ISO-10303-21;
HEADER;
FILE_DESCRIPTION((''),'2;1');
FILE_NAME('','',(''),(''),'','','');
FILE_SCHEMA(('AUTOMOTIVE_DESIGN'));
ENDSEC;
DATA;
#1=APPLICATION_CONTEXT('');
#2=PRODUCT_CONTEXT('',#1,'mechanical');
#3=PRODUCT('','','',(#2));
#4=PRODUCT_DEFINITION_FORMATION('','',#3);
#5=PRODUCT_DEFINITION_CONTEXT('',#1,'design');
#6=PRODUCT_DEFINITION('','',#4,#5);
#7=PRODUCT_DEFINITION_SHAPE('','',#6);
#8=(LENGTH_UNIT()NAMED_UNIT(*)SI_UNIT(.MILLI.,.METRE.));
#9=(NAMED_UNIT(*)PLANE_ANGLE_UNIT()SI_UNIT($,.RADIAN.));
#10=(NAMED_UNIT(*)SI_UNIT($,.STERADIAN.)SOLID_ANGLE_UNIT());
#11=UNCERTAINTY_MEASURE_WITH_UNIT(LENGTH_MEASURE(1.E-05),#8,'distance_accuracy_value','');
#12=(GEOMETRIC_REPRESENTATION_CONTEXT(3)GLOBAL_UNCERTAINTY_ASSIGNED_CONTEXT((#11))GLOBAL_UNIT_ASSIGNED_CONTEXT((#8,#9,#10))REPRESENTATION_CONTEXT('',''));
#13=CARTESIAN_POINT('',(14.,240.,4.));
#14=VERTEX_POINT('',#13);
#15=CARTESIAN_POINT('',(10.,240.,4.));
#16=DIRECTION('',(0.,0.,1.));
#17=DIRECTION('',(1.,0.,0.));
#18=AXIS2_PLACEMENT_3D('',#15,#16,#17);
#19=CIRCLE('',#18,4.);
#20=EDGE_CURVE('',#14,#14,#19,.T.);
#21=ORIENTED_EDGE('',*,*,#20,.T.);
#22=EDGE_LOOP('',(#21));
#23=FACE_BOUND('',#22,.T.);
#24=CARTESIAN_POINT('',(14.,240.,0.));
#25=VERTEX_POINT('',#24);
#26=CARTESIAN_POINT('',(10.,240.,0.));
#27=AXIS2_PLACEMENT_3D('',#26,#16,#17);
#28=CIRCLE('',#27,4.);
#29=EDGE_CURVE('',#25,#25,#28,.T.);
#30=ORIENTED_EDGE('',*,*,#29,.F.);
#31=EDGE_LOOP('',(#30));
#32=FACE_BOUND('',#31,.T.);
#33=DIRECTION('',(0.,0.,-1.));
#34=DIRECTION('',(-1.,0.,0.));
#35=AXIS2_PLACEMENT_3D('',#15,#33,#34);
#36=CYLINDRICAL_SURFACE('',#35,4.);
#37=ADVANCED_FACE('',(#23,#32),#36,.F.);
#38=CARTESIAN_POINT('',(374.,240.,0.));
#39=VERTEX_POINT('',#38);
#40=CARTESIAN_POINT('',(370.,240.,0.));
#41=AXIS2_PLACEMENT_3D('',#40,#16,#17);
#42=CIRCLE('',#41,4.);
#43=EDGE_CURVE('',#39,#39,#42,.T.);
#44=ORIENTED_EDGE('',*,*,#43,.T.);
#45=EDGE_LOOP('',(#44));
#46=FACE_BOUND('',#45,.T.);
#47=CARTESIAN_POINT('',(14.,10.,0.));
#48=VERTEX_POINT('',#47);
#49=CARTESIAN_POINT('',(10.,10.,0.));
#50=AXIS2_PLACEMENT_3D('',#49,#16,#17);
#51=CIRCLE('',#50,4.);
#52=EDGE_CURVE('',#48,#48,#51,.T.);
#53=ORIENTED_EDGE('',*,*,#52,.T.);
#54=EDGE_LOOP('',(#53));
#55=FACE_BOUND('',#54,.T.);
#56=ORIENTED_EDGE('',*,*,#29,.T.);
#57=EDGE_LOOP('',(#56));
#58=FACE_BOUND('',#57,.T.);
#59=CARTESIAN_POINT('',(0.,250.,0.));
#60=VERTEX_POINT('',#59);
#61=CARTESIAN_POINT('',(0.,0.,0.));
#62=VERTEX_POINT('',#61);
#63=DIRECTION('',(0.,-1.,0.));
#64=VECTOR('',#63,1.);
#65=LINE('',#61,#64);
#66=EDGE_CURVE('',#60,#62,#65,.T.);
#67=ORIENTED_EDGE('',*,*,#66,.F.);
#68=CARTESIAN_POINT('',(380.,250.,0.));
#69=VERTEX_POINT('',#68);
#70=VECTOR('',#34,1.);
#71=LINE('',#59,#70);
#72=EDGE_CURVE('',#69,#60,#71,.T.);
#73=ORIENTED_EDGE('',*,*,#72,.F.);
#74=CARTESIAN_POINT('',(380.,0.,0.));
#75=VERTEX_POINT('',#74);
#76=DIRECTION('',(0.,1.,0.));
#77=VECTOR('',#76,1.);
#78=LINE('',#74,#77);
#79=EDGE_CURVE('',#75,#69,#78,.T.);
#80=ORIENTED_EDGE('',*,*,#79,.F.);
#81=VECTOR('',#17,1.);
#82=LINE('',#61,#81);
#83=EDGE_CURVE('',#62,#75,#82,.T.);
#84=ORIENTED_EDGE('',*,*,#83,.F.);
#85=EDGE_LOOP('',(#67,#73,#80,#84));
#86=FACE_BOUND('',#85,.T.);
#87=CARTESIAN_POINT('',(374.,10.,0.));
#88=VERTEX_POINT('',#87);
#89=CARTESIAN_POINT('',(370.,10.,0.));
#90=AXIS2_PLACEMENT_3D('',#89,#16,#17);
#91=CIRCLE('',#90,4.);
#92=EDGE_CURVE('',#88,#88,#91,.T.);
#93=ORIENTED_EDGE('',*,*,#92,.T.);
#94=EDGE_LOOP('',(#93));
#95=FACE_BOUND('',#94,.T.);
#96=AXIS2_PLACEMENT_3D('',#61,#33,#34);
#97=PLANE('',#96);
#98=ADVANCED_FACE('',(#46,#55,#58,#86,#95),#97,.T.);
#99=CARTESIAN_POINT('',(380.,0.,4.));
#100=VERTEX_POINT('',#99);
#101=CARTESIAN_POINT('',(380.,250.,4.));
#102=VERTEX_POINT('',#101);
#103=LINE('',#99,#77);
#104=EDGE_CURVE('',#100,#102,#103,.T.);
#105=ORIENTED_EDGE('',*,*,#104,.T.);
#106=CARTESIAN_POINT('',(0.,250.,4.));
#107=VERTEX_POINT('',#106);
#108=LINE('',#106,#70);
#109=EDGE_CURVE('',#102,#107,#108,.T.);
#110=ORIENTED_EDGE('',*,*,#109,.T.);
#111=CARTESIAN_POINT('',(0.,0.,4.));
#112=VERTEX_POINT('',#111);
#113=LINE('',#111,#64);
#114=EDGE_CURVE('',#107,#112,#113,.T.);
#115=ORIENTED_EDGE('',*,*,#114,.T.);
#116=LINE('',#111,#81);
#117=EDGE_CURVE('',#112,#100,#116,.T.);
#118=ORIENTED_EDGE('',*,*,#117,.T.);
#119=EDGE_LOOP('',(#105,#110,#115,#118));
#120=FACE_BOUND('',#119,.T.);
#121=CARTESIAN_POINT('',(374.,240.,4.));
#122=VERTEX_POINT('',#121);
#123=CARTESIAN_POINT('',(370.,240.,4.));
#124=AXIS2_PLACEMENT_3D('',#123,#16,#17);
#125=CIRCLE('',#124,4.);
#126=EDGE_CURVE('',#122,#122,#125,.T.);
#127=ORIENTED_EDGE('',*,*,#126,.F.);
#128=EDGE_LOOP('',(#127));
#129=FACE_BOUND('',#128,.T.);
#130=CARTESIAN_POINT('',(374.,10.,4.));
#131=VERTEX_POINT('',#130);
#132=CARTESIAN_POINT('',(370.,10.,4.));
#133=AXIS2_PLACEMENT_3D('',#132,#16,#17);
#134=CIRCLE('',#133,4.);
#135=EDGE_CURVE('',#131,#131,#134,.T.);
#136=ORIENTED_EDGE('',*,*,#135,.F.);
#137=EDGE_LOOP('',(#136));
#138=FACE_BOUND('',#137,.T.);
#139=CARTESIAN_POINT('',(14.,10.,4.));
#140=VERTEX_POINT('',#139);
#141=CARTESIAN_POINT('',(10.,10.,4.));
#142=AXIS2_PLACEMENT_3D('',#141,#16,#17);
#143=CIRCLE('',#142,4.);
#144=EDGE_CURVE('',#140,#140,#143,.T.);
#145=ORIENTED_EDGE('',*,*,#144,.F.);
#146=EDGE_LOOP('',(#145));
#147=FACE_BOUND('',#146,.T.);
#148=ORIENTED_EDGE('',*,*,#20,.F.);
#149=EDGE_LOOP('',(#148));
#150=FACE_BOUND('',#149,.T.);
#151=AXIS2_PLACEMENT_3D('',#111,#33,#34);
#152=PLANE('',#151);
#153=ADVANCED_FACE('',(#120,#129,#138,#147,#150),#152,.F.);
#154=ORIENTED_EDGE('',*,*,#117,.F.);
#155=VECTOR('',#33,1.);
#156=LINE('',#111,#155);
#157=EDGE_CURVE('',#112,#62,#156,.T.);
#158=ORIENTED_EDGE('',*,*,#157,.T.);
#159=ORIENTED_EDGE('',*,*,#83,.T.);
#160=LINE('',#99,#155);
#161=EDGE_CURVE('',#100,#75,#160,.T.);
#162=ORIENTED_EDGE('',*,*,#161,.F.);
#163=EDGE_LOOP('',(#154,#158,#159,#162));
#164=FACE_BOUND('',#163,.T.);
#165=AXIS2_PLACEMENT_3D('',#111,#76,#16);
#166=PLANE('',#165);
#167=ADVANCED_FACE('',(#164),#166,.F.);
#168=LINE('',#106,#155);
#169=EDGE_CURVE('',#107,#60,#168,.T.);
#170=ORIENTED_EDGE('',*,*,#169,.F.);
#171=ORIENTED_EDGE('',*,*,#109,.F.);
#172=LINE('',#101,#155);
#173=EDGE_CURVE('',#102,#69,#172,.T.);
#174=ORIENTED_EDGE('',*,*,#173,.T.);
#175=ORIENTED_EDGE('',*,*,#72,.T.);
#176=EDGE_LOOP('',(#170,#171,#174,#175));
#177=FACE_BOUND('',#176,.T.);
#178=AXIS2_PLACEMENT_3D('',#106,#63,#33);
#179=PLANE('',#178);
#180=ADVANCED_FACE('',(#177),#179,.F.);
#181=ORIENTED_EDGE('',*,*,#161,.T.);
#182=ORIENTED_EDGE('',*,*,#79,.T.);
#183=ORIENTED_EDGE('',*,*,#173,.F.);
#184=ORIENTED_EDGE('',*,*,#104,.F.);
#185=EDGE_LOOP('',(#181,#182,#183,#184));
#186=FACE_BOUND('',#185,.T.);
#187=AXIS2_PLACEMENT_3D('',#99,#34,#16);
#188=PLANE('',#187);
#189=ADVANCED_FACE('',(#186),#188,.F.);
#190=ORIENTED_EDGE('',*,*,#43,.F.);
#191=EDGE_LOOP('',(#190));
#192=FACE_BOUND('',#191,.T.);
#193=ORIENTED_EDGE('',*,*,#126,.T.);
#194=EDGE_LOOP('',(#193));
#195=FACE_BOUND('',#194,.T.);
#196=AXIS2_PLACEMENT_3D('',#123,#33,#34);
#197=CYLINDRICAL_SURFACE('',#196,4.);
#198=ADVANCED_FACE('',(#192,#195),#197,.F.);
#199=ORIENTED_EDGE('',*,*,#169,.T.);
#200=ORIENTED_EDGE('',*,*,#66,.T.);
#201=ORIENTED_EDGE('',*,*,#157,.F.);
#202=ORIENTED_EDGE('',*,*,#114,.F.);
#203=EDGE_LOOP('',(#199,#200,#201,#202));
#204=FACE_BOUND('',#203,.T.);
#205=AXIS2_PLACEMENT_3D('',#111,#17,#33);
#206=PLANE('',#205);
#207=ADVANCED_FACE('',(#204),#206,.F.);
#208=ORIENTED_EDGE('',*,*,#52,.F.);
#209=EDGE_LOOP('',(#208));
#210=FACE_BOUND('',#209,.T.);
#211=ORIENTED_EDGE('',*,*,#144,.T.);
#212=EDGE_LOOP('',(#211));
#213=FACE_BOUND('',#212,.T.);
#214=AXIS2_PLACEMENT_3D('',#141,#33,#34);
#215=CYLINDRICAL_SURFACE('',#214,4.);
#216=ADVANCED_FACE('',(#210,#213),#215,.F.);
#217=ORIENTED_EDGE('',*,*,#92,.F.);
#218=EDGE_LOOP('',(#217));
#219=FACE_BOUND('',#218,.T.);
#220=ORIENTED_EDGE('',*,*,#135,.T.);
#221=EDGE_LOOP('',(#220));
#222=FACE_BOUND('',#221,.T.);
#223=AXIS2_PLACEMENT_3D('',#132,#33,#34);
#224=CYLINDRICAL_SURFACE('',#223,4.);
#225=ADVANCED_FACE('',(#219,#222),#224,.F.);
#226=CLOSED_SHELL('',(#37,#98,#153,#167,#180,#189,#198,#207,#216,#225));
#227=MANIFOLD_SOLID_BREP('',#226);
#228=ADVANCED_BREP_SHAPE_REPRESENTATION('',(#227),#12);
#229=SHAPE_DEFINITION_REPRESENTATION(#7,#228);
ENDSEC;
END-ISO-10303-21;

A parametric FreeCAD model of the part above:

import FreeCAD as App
import Part
import Sketcher

doc = App.newDocument("Part")
body = doc.addObject("PartDesign::Body", "Body")

# Sketch on XY plane
sketch1 = doc.addObject("Sketcher::SketchObject", "Sketch")
body.addObject(sketch1)
sketch1.AttachmentSupport = (doc.XY_Plane, [""])
sketch1.MapMode = "FlatFace"
sketch1.addGeometry(Part.LineSegment(App.Vector(0, 250, 0), App.Vector(0, 0, 0)), False)
sketch1.addGeometry(Part.LineSegment(App.Vector(0, 0, 0), App.Vector(380, 0, 0)), False)
sketch1.addGeometry(Part.LineSegment(App.Vector(380, 0, 0), App.Vector(380, 250, 0)), False)
sketch1.addGeometry(Part.LineSegment(App.Vector(380, 250, 0), App.Vector(0, 250, 0)), False)
sketch1.addGeometry(Part.Circle(App.Vector(10, 10, 0), App.Vector(0, 0, 1), 4), False)
sketch1.addGeometry(Part.Circle(App.Vector(370, 10, 0), App.Vector(0, 0, 1), 4), False)
sketch1.addGeometry(Part.Circle(App.Vector(10, 240, 0), App.Vector(0, 0, 1), 4), False)
sketch1.addGeometry(Part.Circle(App.Vector(370, 240, 0), App.Vector(0, 0, 1), 4), False)
sketch1.addConstraint(Sketcher.Constraint("Coincident", 0, 2, 1, 1))
sketch1.addConstraint(Sketcher.Constraint("Coincident", 1, 2, 2, 1))
sketch1.addConstraint(Sketcher.Constraint("Coincident", 2, 2, 3, 1))
sketch1.addConstraint(Sketcher.Constraint("Coincident", 3, 2, 0, 1))
sketch1.addConstraint(Sketcher.Constraint("Vertical", 0))
sketch1.addConstraint(Sketcher.Constraint("Horizontal", 1))
sketch1.addConstraint(Sketcher.Constraint("Vertical", 2))
sketch1.addConstraint(Sketcher.Constraint("Horizontal", 3))
sketch1.addConstraint(Sketcher.Constraint("Coincident", 0, 2, -1, 1))
sketch1.addConstraint(Sketcher.Constraint("Equal", 4, 5))
sketch1.addConstraint(Sketcher.Constraint("Equal", 5, 6))
sketch1.addConstraint(Sketcher.Constraint("Equal", 6, 7))
sketch1.addConstraint(Sketcher.Constraint("Horizontal", 4, 3, 5, 3))
sketch1.addConstraint(Sketcher.Constraint("Horizontal", 6, 3, 7, 3))
sketch1.addConstraint(Sketcher.Constraint("Vertical", 4, 3, 6, 3))
sketch1.addConstraint(Sketcher.Constraint("Vertical", 5, 3, 7, 3))
sketch1.addConstraint(Sketcher.Constraint("Diameter", 4, 8.0))
sketch1.addConstraint(Sketcher.Constraint("DistanceX", 1, 1, 1, 2, 380.0))
sketch1.addConstraint(Sketcher.Constraint("DistanceY", 0, 2, 0, 1, 250.0))
sketch1.addConstraint(Sketcher.Constraint("DistanceX", -1, 1, 4, 3, 10.0))
sketch1.addConstraint(Sketcher.Constraint("DistanceY", -1, 1, 4, 3, 10.0))
sketch1.addConstraint(Sketcher.Constraint("DistanceX", -1, 1, 5, 3, 370.0))
sketch1.addConstraint(Sketcher.Constraint("DistanceY", -1, 1, 6, 3, 240.0))
pad1 = doc.addObject("PartDesign::Pad", "Pad")
body.addObject(pad1)
pad1.Profile = sketch1
pad1.Length = 4

doc.recompute()
